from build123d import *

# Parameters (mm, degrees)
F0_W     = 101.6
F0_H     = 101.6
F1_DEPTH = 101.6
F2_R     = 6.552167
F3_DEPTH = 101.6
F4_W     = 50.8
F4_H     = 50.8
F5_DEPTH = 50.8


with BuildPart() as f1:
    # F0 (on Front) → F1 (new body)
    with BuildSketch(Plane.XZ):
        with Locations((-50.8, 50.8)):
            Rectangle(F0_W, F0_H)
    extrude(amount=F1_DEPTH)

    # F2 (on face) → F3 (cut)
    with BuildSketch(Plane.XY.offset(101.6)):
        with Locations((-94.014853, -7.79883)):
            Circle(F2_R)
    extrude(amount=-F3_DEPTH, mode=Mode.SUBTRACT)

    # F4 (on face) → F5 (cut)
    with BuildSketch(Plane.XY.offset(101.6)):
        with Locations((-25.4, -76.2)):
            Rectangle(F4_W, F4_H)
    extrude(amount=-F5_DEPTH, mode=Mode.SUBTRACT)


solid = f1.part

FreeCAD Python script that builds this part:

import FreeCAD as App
import Part
import Sketcher

V = App.Vector
Q = App.Units.Quantity

doc = App.newDocument("Part")
body = doc.addObject("PartDesign::Body", "Body")

sketch1 = body.newObject("Sketcher::SketchObject", "Sketch")
sketch1.AttachmentSupport = (doc.getObject("XZ_Plane"), [""])
sketch1.MapMode = "FlatFace"
sketch1.addGeometry([
    Part.LineSegment(V(-102, 102, 0), V(-102, 0, 0)),
    Part.LineSegment(V(-102, 0, 0), V(0, 0, 0)),
    Part.LineSegment(V(0, 0, 0), V(0, 102, 0)),
    Part.LineSegment(V(0, 102, 0), V(-102, 102, 0)),
], False)
sketch1.addConstraint([
    Sketcher.Constraint("Coincident", 0, 2, 1, 1),
    Sketcher.Constraint("Coincident", 1, 2, 2, 1),
    Sketcher.Constraint("Coincident", 2, 2, 3, 1),
    Sketcher.Constraint("Coincident", 3, 2, 0, 1),
    Sketcher.Constraint("Vertical", 0),
    Sketcher.Constraint("Horizontal", 1),
    Sketcher.Constraint("Vertical", 2),
    Sketcher.Constraint("Horizontal", 3),
    Sketcher.Constraint("Coincident", 1, 2, -1, 1),
    Sketcher.Constraint("Equal", 3, 0),
    Sketcher.Constraint("DistanceX", 1, 1, 1, 2, Q("4 in")),
])
pad1 = body.newObject("PartDesign::Pad", "Pad")
pad1.Profile = sketch1
pad1.Length = Q("4 in")

sketch2 = body.newObject("Sketcher::SketchObject", "Sketch001")
sketch2.AttachmentSupport = (doc.getObject("XY_Plane"), [""])
sketch2.MapMode = "FlatFace"
sketch2.AttachmentOffset = App.Placement(V(0, 0, 4 * 25.4), App.Rotation())
sketch2.addGeometry(Part.Circle(V(-94, -8, 0), V(0, 0, 1), 7), False)
sketch2.addConstraint([
    Sketcher.Constraint("Diameter", 0, 13.104334),
    Sketcher.Constraint("DistanceY", 0, 3, -1, 1, 7.79883),
    Sketcher.Constraint("DistanceX", 0, 3, -1, 1, 94.014853),
])
pocket1 = body.newObject("PartDesign::Pocket", "Pocket")
pocket1.Profile = sketch2
pocket1.Length = Q("4 in")

sketch3 = body.newObject("Sketcher::SketchObject", "Sketch002")
sketch3.AttachmentSupport = (doc.getObject("XY_Plane"), [""])
sketch3.MapMode = "FlatFace"
sketch3.AttachmentOffset = App.Placement(V(0, 0, 4 * 25.4), App.Rotation())
sketch3.addGeometry([
    Part.LineSegment(V(-51, -51, 0), V(-51, -102, 0)),
    Part.LineSegment(V(-51, -102, 0), V(0, -102, 0)),
    Part.LineSegment(V(0, -102, 0), V(0, -51, 0)),
    Part.LineSegment(V(0, -51, 0), V(-51, -51, 0)),
], False)
sketch3.addConstraint([
    Sketcher.Constraint("Coincident", 0, 2, 1, 1),
    Sketcher.Constraint("Coincident", 1, 2, 2, 1),
    Sketcher.Constraint("Coincident", 2, 2, 3, 1),
    Sketcher.Constraint("Coincident", 3, 2, 0, 1),
    Sketcher.Constraint("Vertical", 0),
    Sketcher.Constraint("Horizontal", 1),
    Sketcher.Constraint("Vertical", 2),
    Sketcher.Constraint("Horizontal", 3),
    Sketcher.Constraint("PointOnObject", 1, 2, -2),
    Sketcher.Constraint("Equal", 3, 0),
    Sketcher.Constraint("DistanceX", 1, 1, 1, 2, Q("2 in")),
    Sketcher.Constraint("DistanceY", 0, 2, -1, 1, Q("4 in")),
])
pocket2 = body.newObject("PartDesign::Pocket", "Pocket001")
pocket2.Profile = sketch3
pocket2.Length = Q("2 in")

doc.recompute()
